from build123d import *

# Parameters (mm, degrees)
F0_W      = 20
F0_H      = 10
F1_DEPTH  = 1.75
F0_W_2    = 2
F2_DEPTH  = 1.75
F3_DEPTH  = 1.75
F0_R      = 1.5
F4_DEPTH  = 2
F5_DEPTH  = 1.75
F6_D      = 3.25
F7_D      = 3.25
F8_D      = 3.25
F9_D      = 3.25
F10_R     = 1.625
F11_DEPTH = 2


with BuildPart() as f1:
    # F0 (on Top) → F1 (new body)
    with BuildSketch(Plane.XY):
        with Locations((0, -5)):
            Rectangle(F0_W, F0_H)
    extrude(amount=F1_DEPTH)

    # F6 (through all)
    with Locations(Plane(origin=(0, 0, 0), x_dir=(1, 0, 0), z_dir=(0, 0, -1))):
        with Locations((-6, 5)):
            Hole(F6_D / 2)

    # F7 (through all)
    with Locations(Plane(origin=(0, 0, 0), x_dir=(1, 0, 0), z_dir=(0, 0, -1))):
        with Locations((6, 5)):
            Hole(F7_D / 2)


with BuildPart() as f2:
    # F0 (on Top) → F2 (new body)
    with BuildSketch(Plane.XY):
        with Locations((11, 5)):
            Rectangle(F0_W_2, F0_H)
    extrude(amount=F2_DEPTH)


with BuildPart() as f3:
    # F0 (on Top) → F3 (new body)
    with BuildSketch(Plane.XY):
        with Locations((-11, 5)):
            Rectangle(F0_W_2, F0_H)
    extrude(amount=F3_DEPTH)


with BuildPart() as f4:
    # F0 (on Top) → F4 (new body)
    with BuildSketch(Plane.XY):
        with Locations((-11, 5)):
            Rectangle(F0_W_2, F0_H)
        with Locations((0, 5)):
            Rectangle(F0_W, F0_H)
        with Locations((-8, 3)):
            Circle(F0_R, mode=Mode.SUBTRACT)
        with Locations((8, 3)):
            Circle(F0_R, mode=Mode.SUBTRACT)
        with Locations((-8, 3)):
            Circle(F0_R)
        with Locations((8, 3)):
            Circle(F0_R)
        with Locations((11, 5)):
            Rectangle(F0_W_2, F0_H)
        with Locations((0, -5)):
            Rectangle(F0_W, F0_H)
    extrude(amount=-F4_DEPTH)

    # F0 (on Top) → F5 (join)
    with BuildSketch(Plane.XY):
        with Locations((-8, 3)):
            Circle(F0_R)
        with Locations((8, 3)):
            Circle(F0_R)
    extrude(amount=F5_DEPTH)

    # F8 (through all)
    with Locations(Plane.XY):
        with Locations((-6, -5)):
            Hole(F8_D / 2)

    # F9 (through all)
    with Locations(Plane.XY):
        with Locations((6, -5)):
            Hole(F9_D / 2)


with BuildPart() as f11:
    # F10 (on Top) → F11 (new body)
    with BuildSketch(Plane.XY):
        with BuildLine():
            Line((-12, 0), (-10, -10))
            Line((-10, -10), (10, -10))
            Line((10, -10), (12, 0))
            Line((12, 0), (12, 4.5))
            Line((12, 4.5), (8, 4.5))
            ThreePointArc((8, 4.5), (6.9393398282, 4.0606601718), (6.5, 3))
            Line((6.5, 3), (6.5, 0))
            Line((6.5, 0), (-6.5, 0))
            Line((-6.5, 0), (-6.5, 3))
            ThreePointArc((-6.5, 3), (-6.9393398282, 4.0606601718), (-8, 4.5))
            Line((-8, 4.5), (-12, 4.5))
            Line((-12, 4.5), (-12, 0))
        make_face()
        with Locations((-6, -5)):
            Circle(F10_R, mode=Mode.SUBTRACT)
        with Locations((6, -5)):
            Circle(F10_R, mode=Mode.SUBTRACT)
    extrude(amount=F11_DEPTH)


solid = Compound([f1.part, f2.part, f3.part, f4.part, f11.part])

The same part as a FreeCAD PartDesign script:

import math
import FreeCAD as App
import Part
import Sketcher
from FreeCAD import Vector
Q = App.Units.Quantity

doc = App.newDocument("Part")
body = doc.addObject("PartDesign::Body", "Body")

sketch1 = body.newObject("Sketcher::SketchObject", "Sketch")
sketch1.AttachmentSupport = (doc.getObject("XY_Plane"), [""])
sketch1.MapMode = "FlatFace"
sketch1.addGeometry([
    Part.LineSegment(Vector(-10, 0, 0), Vector(-10, -10, 0)),
    Part.LineSegment(Vector(-10, -10, 0), Vector(10, -10, 0)),
    Part.LineSegment(Vector(10, -10, 0), Vector(10, 0, 0)),
    Part.LineSegment(Vector(10, 0, 0), Vector(-10, 0, 0)),
], False)
sketch1.addConstraint([
    Sketcher.Constraint("Coincident", 0, 2, 1, 1),
    Sketcher.Constraint("Coincident", 1, 2, 2, 1),
    Sketcher.Constraint("Coincident", 2, 2, 3, 1),
    Sketcher.Constraint("Coincident", 3, 2, 0, 1),
    Sketcher.Constraint("Vertical", 0),
    Sketcher.Constraint("Horizontal", 1),
    Sketcher.Constraint("Vertical", 2),
    Sketcher.Constraint("Horizontal", 3),
    Sketcher.Constraint("Symmetric", 2, 2, 3, 2, -1, 1),
    Sketcher.Constraint("DistanceX", 1, 1, 1, 2, Q("20 mm")),
    Sketcher.Constraint("DistanceY", 0, 2, 0, 1, Q("10 mm")),
])
pad1 = body.newObject("PartDesign::Pad", "Pad")
pad1.Profile = sketch1
pad1.Length = 1.75

sketch2 = body.newObject("Sketcher::SketchObject", "Sketch001")
sketch2.AttachmentSupport = (doc.getObject("XY_Plane"), [""])
sketch2.MapMode = "FlatFace"
sketch2.addGeometry(Part.Circle(Vector(-6, -5, 0), Vector(0, 0, 1), 1.625), False)
sketch2.addConstraint([
    Sketcher.Constraint("Diameter", 0, Q("3.25 mm")),
    Sketcher.Constraint("DistanceX", 0, 3, -1, 1, Q("6 mm")),
    Sketcher.Constraint("DistanceY", 0, 3, -1, 1, Q("5 mm")),
])
doc.recompute()
hole = body.newObject("PartDesign::Hole", "Hole")
hole.Profile = sketch2
hole.ThreadType = "None"
hole.Diameter = 3.25
hole.DepthType = "ThroughAll"
hole.Reversed = True

sketch3 = body.newObject("Sketcher::SketchObject", "Sketch002")
sketch3.AttachmentSupport = (doc.getObject("XY_Plane"), [""])
sketch3.MapMode = "FlatFace"
sketch3.addGeometry(Part.Circle(Vector(6, -5, 0), Vector(0, 0, 1), 1.625), False)
sketch3.addConstraint([
    Sketcher.Constraint("Diameter", 0, Q("3.25 mm")),
    Sketcher.Constraint("DistanceX", -1, 1, 0, 3, Q("6 mm")),
    Sketcher.Constraint("DistanceY", 0, 3, -1, 1, Q("5 mm")),
])
doc.recompute()
hole2 = body.newObject("PartDesign::Hole", "Hole001")
hole2.Profile = sketch3
hole2.ThreadType = "None"
hole2.Diameter = 3.25
hole2.DepthType = "ThroughAll"
hole2.Reversed = True
body2 = doc.addObject("PartDesign::Body", "Body001")

sketch4 = body2.newObject("Sketcher::SketchObject", "Sketch003")
sketch4.AttachmentSupport = (doc.getObject("XY_Plane001"), [""])
sketch4.MapMode = "FlatFace"
sketch4.addGeometry([
    Part.LineSegment(Vector(10, 10, 0), Vector(10, 0, 0)),
    Part.LineSegment(Vector(10, 0, 0), Vector(12, 0, 0)),
    Part.LineSegment(Vector(12, 0, 0), Vector(12, 10, 0)),
    Part.LineSegment(Vector(12, 10, 0), Vector(10, 10, 0)),
], False)
sketch4.addConstraint([
    Sketcher.Constraint("Coincident", 0, 2, 1, 1),
    Sketcher.Constraint("Coincident", 1, 2, 2, 1),
    Sketcher.Constraint("Coincident", 2, 2, 3, 1),
    Sketcher.Constraint("Coincident", 3, 2, 0, 1),
    Sketcher.Constraint("Vertical", 0),
    Sketcher.Constraint("Horizontal", 1),
    Sketcher.Constraint("Vertical", 2),
    Sketcher.Constraint("Horizontal", 3),
    Sketcher.Constraint("PointOnObject", 0, 2, -1),
    Sketcher.Constraint("DistanceX", 1, 1, 1, 2, Q("2 mm")),
    Sketcher.Constraint("DistanceY", 0, 2, 0, 1, Q("10 mm")),
    Sketcher.Constraint("DistanceX", -1, 1, 0, 2, Q("10 mm")),
])
pad2 = body2.newObject("PartDesign::Pad", "Pad001")
pad2.Profile = sketch4
pad2.Length = 1.75
body3 = doc.addObject("PartDesign::Body", "Body002")

sketch5 = body3.newObject("Sketcher::SketchObject", "Sketch004")
sketch5.AttachmentSupport = (doc.getObject("XY_Plane002"), [""])
sketch5.MapMode = "FlatFace"
sketch5.addGeometry([
    Part.LineSegment(Vector(-12, 10, 0), Vector(-12, 0, 0)),
    Part.LineSegment(Vector(-12, 0, 0), Vector(-10, 0, 0)),
    Part.LineSegment(Vector(-10, 0, 0), Vector(-10, 10, 0)),
    Part.LineSegment(Vector(-10, 10, 0), Vector(-12, 10, 0)),
], False)
sketch5.addConstraint([
    Sketcher.Constraint("Coincident", 0, 2, 1, 1),
    Sketcher.Constraint("Coincident", 1, 2, 2, 1),
    Sketcher.Constraint("Coincident", 2, 2, 3, 1),
    Sketcher.Constraint("Coincident", 3, 2, 0, 1),
    Sketcher.Constraint("Vertical", 0),
    Sketcher.Constraint("Horizontal", 1),
    Sketcher.Constraint("Vertical", 2),
    Sketcher.Constraint("Horizontal", 3),
    Sketcher.Constraint("PointOnObject", 0, 2, -1),
    Sketcher.Constraint("DistanceX", 1, 1, 1, 2, Q("2 mm")),
    Sketcher.Constraint("DistanceY", 0, 2, 0, 1, Q("10 mm")),
    Sketcher.Constraint("DistanceX", 0, 2, -1, 1, Q("12 mm")),
])
pad3 = body3.newObject("PartDesign::Pad", "Pad002")
pad3.Profile = sketch5
pad3.Length = 1.75
body4 = doc.addObject("PartDesign::Body", "Body003")

sketch6 = body4.newObject("Sketcher::SketchObject", "Sketch005")
sketch6.AttachmentSupport = (doc.getObject("XY_Plane003"), [""])
sketch6.MapMode = "FlatFace"
sketch6.addGeometry([
    Part.LineSegment(Vector(-12, 10, 0), Vector(-12, 0, 0)),
    Part.LineSegment(Vector(-12, 0, 0), Vector(-10, 0, 0)),
    Part.LineSegment(Vector(-10, 0, 0), Vector(-10, -10, 0)),
    Part.LineSegment(Vector(-10, -10, 0), Vector(10, -10, 0)),
    Part.LineSegment(Vector(10, -10, 0), Vector(10, 0, 0)),
    Part.LineSegment(Vector(10, 0, 0), Vector(12, 0, 0)),
    Part.LineSegment(Vector(12, 0, 0), Vector(12, 10, 0)),
    Part.LineSegment(Vector(12, 10, 0), Vector(-12, 10, 0)),
], False)
sketch6.addConstraint([
    Sketcher.Constraint("Coincident", 0, 2, 1, 1),
    Sketcher.Constraint("Coincident", 1, 2, 2, 1),
    Sketcher.Constraint("Coincident", 2, 2, 3, 1),
    Sketcher.Constraint("Coincident", 3, 2, 4, 1),
    Sketcher.Constraint("Coincident", 4, 2, 5, 1),
    Sketcher.Constraint("Coincident", 5, 2, 6, 1),
    Sketcher.Constraint("Coincident", 6, 2, 7, 1),
    Sketcher.Constraint("Coincident", 7, 2, 0, 1),
    Sketcher.Constraint("Vertical", 0),
    Sketcher.Constraint("Horizontal", 1),
    Sketcher.Constraint("Vertical", 2),
    Sketcher.Constraint("Horizontal", 3),
    Sketcher.Constraint("Vertical", 4),
    Sketcher.Constraint("Horizontal", 5),
    Sketcher.Constraint("Vertical", 6),
    Sketcher.Constraint("Horizontal", 7),
    Sketcher.Constraint("Symmetric", 1, 2, 4, 2, -1, 1),
    Sketcher.Constraint("Symmetric", 0, 2, 5, 2, -2),
    Sketcher.Constraint("Equal", 0, 2),
    Sketcher.Constraint("DistanceX", 1, 1, 1, 2, Q("2 mm")),
    Sketcher.Constraint("DistanceX", 3, 1, 3, 2, Q("20 mm")),
    Sketcher.Constraint("DistanceY", 0, 2, 0, 1, Q("10 mm")),
])
pad4 = body4.newObject("PartDesign::Pad", "Pad003")
pad4.Profile = sketch6
pad4.Length = 2
pad4.Reversed = True

sketch7 = body4.newObject("Sketcher::SketchObject", "Sketch006")
sketch7.AttachmentSupport = (doc.getObject("XY_Plane003"), [""])
sketch7.MapMode = "FlatFace"
sketch7.addGeometry([
    Part.Circle(Vector(-8, 3, 0), Vector(0, 0, 1), 1.5),
    Part.Circle(Vector(8, 3, 0), Vector(0, 0, 1), 1.5),
], False)
sketch7.addConstraint([
    Sketcher.Constraint("Equal", 0, 1),
    Sketcher.Constraint("Symmetric", 0, 3, 1, 3, -2),
    Sketcher.Constraint("Diameter", 0, Q("3 mm")),
    Sketcher.Constraint("DistanceX", 0, 3, -1, 1, Q("8 mm")),
    Sketcher.Constraint("DistanceY", -1, 1, 0, 3, Q("3 mm")),
])
pad5 = body4.newObject("PartDesign::Pad", "Pad004")
pad5.Profile = sketch7
pad5.Length = 1.75

sketch8 = body4.newObject("Sketcher::SketchObject", "Sketch007")
sketch8.AttachmentSupport = (doc.getObject("XY_Plane003"), [""])
sketch8.MapMode = "FlatFace"
sketch8.addGeometry(Part.Circle(Vector(-6, -5, 0), Vector(0, 0, 1), 1.625), False)
sketch8.addConstraint([
    Sketcher.Constraint("Diameter", 0, Q("3.25 mm")),
    Sketcher.Constraint("DistanceX", 0, 3, -1, 1, Q("6 mm")),
    Sketcher.Constraint("DistanceY", 0, 3, -1, 1, Q("5 mm")),
])
doc.recompute()
hole3 = body4.newObject("PartDesign::Hole", "Hole002")
hole3.Profile = sketch8
hole3.ThreadType = "None"
hole3.Diameter = 3.25
hole3.DepthType = "ThroughAll"

sketch9 = body4.newObject("Sketcher::SketchObject", "Sketch008")
sketch9.AttachmentSupport = (doc.getObject("XY_Plane003"), [""])
sketch9.MapMode = "FlatFace"
sketch9.addGeometry(Part.Circle(Vector(6, -5, 0), Vector(0, 0, 1), 1.625), False)
sketch9.addConstraint([
    Sketcher.Constraint("Diameter", 0, Q("3.25 mm")),
    Sketcher.Constraint("DistanceX", -1, 1, 0, 3, Q("6 mm")),
    Sketcher.Constraint("DistanceY", 0, 3, -1, 1, Q("5 mm")),
])
doc.recompute()
hole4 = body4.newObject("PartDesign::Hole", "Hole003")
hole4.Profile = sketch9
hole4.ThreadType = "None"
hole4.Diameter = 3.25
hole4.DepthType = "ThroughAll"
body5 = doc.addObject("PartDesign::Body", "Body004")

sketch10 = body5.newObject("Sketcher::SketchObject", "Sketch009")
sketch10.AttachmentSupport = (doc.getObject("XY_Plane004"), [""])
sketch10.MapMode = "FlatFace"
sketch10.addGeometry([
    Part.LineSegment(Vector(-12, 0, 0), Vector(-10, -10, 0)),
    Part.LineSegment(Vector(-10, -10, 0), Vector(10, -10, 0)),
    Part.LineSegment(Vector(10, -10, 0), Vector(12, 0, 0)),
    Part.LineSegment(Vector(12, 0, 0), Vector(12, 4.5, 0)),
    Part.LineSegment(Vector(12, 4.5, 0), Vector(8, 4.5, 0)),
    Part.ArcOfCircle(Part.Circle(Vector(8, 3, 0), Vector(0, 0, 1), 1.5), math.radians(90), math.radians(180)),
    Part.LineSegment(Vector(6.5, 3, 0), Vector(6.5, 0, 0)),
    Part.LineSegment(Vector(6.5, 0, 0), Vector(-6.5, 0, 0)),
    Part.LineSegment(Vector(-6.5, 0, 0), Vector(-6.5, 3, 0)),
    Part.ArcOfCircle(Part.Circle(Vector(-8, 3, 0), Vector(0, 0, 1), 1.5), math.radians(0), math.radians(90)),
    Part.LineSegment(Vector(-8, 4.5, 0), Vector(-12, 4.5, 0)),
    Part.LineSegment(Vector(-12, 4.5, 0), Vector(-12, 0, 0)),
    Part.Circle(Vector(-6, -5, 0), Vector(0, 0, 1), 1.625),
    Part.Circle(Vector(6, -5, 0), Vector(0, 0, 1), 1.625),
], False)
sketch10.addConstraint([
    Sketcher.Constraint("Coincident", 0, 2, 1, 1),
    Sketcher.Constraint("Coincident", 1, 2, 2, 1),
    Sketcher.Constraint("Coincident", 2, 2, 3, 1),
    Sketcher.Constraint("Coincident", 3, 2, 4, 1),
    Sketcher.Constraint("Tangent", 4, 2, 5, 1),
    Sketcher.Constraint("Tangent", 5, 2, 6, 1),
    Sketcher.Constraint("Coincident", 6, 2, 7, 1),
    Sketcher.Constraint("Coincident", 7, 2, 8, 1),
    Sketcher.Constraint("Tangent", 8, 2, 9, 1),
    Sketcher.Constraint("Tangent", 9, 2, 10, 1),
    Sketcher.Constraint("Coincident", 10, 2, 11, 1),
    Sketcher.Constraint("Coincident", 11, 2, 0, 1),
    Sketcher.Constraint("Horizontal", 1),
    Sketcher.Constraint("Vertical", 3),
    Sketcher.Constraint("Horizontal", 4),
    Sketcher.Constraint("Vertical", 6),
    Sketcher.Constraint("Horizontal", 7),
    Sketcher.Constraint("Vertical", 8),
    Sketcher.Constraint("Horizontal", 10),
    Sketcher.Constraint("Vertical", 11),
    Sketcher.Constraint("Equal", 5, 9),
    Sketcher.Constraint("Equal", 12, 13),
    Sketcher.Constraint("Symmetric", 6, 2, 7, 2, -1, 1),
    Sketcher.Constraint("Symmetric", 2, 2, 11, 2, -1, 1),
    Sketcher.Constraint("Symmetric", 12, 3, 13, 3, -2),
    Sketcher.Constraint("PointOnObject", 2, 2, -1),
    Sketcher.Constraint("Horizontal", 5, 3, 9, 3),
    Sketcher.Constraint("Equal", 0, 2),
    Sketcher.Constraint("Radius", 5, Q("1.5 mm")),
    Sketcher.Constraint("Diameter", 12, Q("3.25 mm")),
    Sketcher.Constraint("DistanceX", 1, 1, 1, 2, Q("20 mm")),
    Sketcher.Constraint("DistanceX", 4, 2, 4, 1, Q("4 mm")),
    Sketcher.Constraint("DistanceX", 7, 2, 7, 1, Q("13 mm")),
    Sketcher.Constraint("DistanceY", 6, 2, 6, 1, Q("3 mm")),
    Sketcher.Constraint("DistanceX", 12, 3, -1, 1, Q("6 mm")),
    Sketcher.Constraint("DistanceY", 12, 3, -1, 1, Q("5 mm")),
    Sketcher.Constraint("DistanceY", 0, 2, -1, 1, Q("10 mm")),
])
pad6 = body5.newObject("PartDesign::Pad", "Pad005")
pad6.Profile = sketch10
pad6.Length = 2

doc.recompute()
